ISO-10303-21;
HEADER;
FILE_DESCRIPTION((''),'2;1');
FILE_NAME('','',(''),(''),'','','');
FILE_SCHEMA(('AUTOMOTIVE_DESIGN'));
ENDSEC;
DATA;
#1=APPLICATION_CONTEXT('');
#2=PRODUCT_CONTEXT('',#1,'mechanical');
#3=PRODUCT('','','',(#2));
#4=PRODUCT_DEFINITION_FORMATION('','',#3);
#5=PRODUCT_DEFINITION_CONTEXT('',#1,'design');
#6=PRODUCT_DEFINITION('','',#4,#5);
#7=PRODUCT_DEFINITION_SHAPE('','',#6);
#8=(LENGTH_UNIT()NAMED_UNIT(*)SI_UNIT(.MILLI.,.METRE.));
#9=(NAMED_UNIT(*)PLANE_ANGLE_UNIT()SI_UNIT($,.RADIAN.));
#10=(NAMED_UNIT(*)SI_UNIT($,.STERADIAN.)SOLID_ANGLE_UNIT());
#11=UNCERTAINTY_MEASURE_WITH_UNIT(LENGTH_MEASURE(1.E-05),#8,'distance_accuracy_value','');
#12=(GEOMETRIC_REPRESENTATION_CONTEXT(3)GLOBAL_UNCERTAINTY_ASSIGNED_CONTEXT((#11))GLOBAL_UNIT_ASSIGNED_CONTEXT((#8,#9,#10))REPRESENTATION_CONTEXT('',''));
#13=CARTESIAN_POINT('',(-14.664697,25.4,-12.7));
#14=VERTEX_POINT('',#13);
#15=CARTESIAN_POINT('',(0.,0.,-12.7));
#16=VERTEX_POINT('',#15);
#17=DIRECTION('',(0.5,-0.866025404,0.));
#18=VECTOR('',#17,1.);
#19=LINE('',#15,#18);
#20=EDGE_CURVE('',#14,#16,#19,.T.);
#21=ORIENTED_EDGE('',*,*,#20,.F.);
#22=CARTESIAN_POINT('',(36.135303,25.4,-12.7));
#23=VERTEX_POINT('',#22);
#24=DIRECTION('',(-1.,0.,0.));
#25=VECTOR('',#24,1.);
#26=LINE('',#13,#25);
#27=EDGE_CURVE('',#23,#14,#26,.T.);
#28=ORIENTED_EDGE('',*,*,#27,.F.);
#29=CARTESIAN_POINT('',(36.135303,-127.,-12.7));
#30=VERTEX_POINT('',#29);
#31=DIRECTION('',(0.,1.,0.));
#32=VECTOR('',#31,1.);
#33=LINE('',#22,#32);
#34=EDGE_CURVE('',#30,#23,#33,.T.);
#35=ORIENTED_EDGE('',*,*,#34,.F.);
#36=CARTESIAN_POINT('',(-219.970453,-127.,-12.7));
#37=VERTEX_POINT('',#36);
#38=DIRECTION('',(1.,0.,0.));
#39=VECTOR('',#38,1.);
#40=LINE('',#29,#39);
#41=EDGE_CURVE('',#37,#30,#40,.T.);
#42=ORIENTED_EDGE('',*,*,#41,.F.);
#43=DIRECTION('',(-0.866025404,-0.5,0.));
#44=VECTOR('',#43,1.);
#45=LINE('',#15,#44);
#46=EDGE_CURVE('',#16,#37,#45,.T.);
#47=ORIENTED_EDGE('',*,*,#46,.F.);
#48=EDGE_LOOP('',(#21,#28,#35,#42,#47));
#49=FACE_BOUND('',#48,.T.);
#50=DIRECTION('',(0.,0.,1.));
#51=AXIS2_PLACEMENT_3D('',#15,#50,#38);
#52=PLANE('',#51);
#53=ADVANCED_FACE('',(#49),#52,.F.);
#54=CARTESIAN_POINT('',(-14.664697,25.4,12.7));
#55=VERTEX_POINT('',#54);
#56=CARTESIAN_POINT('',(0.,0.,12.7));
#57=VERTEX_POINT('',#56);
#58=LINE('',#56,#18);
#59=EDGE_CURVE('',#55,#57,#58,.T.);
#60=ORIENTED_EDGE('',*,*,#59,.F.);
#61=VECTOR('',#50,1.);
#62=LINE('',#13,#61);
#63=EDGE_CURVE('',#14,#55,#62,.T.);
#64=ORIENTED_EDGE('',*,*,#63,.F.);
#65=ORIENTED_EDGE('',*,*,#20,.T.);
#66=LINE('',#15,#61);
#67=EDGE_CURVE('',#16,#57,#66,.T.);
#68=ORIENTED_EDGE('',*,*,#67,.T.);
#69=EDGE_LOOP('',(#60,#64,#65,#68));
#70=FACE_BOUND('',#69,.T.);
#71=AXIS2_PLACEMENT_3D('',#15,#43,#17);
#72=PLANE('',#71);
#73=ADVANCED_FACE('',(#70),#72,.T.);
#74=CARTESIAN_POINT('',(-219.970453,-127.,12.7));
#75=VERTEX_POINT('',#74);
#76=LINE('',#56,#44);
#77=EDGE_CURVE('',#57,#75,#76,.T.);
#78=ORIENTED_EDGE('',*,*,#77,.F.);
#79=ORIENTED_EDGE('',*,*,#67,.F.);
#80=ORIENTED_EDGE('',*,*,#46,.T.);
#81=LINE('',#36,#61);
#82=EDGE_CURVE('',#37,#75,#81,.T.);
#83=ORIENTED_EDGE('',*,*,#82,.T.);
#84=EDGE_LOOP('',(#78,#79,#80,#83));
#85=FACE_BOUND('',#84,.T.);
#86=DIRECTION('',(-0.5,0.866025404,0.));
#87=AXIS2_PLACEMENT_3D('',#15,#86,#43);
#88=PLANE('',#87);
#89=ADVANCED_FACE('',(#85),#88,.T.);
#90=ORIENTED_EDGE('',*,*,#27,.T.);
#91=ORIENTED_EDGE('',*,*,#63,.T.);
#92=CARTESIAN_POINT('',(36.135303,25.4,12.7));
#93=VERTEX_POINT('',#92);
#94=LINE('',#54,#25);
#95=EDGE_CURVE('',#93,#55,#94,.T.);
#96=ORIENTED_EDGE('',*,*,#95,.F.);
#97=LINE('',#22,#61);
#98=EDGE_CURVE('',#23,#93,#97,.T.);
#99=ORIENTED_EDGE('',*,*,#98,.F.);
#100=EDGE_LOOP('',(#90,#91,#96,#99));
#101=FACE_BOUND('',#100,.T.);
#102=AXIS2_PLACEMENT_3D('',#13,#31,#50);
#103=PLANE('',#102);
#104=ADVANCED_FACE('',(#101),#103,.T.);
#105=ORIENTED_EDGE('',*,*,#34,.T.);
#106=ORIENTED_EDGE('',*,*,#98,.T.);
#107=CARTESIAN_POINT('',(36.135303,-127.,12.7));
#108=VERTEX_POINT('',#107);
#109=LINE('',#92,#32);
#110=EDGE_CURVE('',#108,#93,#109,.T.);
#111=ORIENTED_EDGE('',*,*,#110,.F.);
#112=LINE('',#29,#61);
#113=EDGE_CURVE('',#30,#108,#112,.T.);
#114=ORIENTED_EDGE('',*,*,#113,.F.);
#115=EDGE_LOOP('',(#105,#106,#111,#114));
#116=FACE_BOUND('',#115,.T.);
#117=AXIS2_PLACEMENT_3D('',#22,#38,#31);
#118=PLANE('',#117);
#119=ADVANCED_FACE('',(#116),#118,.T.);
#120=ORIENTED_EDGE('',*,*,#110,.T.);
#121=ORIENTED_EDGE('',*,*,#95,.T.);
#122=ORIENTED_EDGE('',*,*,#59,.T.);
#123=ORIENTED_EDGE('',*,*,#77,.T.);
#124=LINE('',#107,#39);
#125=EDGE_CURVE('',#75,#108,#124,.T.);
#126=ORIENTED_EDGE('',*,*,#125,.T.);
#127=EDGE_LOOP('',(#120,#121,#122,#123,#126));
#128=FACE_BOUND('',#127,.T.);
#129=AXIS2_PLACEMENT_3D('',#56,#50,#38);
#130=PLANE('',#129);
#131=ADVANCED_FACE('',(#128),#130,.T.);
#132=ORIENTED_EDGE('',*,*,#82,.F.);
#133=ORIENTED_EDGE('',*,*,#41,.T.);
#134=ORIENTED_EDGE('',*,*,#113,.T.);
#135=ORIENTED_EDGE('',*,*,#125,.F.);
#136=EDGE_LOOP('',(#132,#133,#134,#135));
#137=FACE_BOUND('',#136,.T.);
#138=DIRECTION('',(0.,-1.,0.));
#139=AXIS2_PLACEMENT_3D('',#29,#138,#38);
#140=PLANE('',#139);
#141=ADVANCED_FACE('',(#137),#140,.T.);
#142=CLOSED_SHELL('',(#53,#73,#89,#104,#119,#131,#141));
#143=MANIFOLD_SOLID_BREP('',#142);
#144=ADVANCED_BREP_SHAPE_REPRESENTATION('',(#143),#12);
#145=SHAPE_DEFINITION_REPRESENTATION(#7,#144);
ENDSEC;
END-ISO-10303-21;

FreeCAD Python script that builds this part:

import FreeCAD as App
import Part
import Sketcher
Q = App.Units.Quantity

doc = App.newDocument("Part")
body = doc.addObject("PartDesign::Body", "Body")

# Sketch on XY plane
sketch1 = body.newObject("Sketcher::SketchObject", "Sketch")
sketch1.AttachmentSupport = (doc.getObject("XY_Plane"), [""])
sketch1.MapMode = "FlatFace"
sketch1.addGeometry([
    Part.LineSegment(App.Vector(36, 25, 0), App.Vector(-15, 25, 0)),  # 0
    Part.LineSegment(App.Vector(-15, 25, 0), App.Vector(0, 0, 0)),  # 1
    Part.LineSegment(App.Vector(0, 0, 0), App.Vector(-220, -127, 0)),  # 2
    Part.LineSegment(App.Vector(-220, -127, 0), App.Vector(36, -127, 0)),  # 3
    Part.LineSegment(App.Vector(36, -127, 0), App.Vector(36, 25, 0)),  # 4
], False)
sketch1.addConstraint([
    Sketcher.Constraint("Coincident", 0, 2, 1, 1),
    Sketcher.Constraint("Coincident", 1, 2, 2, 1),
    Sketcher.Constraint("Coincident", 2, 2, 3, 1),
    Sketcher.Constraint("Coincident", 3, 2, 4, 1),
    Sketcher.Constraint("Coincident", 4, 2, 0, 1),
    Sketcher.Constraint("Horizontal", 0),
    Sketcher.Constraint("Horizontal", 3),
    Sketcher.Constraint("Vertical", 4),
    Sketcher.Constraint("Coincident", 1, 2, -1, 1),
    Sketcher.Constraint("Perpendicular", 1, 2),
    Sketcher.Constraint("DistanceX", 0, 2, 0, 1, Q("2 in")),
    Sketcher.Constraint("DistanceY", 4, 1, 4, 2, Q("6 in")),
    Sketcher.Constraint("Distance", 2, Q("10 in")),
    Sketcher.Constraint("DistanceY", -1, 1, 0, 2, Q("1 in")),
])
pad1 = body.newObject("PartDesign::Pad", "Pad")
pad1.Profile = sketch1
pad1.Length = Q("1 in")
pad1.Midplane = True

doc.recompute()
